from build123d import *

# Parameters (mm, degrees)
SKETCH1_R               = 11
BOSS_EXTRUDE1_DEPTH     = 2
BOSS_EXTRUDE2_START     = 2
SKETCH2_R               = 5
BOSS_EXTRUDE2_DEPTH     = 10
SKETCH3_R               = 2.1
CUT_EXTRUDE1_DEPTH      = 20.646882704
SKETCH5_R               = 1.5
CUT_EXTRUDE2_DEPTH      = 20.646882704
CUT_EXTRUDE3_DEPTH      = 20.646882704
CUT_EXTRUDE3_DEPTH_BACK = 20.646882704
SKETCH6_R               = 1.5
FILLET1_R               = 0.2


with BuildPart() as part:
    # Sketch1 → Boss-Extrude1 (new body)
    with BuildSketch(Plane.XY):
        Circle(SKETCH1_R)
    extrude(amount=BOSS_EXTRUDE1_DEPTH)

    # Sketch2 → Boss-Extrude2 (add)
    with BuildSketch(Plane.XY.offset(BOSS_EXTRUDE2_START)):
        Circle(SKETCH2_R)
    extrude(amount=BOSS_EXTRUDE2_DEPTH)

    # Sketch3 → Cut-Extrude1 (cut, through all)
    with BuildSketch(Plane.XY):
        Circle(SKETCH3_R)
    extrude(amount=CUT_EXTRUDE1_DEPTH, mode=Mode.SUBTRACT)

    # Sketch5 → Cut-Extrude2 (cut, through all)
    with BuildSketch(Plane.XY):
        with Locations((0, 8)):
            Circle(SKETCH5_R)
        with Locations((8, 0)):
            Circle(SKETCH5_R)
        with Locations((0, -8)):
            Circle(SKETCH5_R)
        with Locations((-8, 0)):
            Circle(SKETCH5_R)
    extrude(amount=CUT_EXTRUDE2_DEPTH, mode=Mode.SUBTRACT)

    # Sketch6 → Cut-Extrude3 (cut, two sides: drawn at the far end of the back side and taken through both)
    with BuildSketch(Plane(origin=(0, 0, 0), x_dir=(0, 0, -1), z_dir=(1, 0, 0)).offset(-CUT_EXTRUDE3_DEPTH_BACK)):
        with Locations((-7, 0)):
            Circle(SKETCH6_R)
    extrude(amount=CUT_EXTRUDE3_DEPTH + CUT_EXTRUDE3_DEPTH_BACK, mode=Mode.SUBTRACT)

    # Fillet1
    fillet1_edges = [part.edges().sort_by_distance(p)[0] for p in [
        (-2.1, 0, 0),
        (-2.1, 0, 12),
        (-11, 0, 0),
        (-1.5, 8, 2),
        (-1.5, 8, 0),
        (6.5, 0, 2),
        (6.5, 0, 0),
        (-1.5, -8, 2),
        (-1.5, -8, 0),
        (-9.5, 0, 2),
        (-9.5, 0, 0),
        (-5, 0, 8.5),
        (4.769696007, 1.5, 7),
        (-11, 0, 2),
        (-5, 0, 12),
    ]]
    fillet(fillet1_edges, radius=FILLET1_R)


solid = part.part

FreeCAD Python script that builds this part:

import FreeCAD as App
import Part
import Sketcher
from FreeCAD import Vector
Q = App.Units.Quantity


def edges_at(feature, points):
    """Names of the edges that pass closest to the given points."""
    edges = feature.Shape.Edges
    near = lambda p: min(range(len(edges)), key=lambda i: edges[i].distToShape(Part.Vertex(*p))[0])
    return sorted({f"Edge{near(p) + 1}" for p in points})

doc = App.newDocument("Part")
body = doc.addObject("PartDesign::Body", "Body")

sketch1 = body.newObject("Sketcher::SketchObject", "Sketch")
sketch1.AttachmentSupport = (doc.getObject("XY_Plane"), [""])
sketch1.MapMode = "FlatFace"
sketch1.addGeometry(Part.Circle(Vector(0, 0, 0), Vector(0, 0, 1), 11), False)
sketch1.addConstraint([
    Sketcher.Constraint("Coincident", 0, 3, -1, 1),
    Sketcher.Constraint("Diameter", 0, Q("22 mm")),
])
pad1 = body.newObject("PartDesign::Pad", "Pad")
pad1.Profile = sketch1
pad1.Length = 2

sketch2 = body.newObject("Sketcher::SketchObject", "Sketch001")
sketch2.AttachmentSupport = (doc.getObject("XY_Plane"), [""])
sketch2.MapMode = "FlatFace"
sketch2.AttachmentOffset = App.Placement(Vector(0, 0, 2), App.Rotation())
sketch2.addGeometry(Part.Circle(Vector(0, 0, 0), Vector(0, 0, 1), 5), False)
sketch2.addConstraint([
    Sketcher.Constraint("Coincident", 0, 3, -1, 1),
    Sketcher.Constraint("Diameter", 0, Q("10 mm")),
])
pad2 = body.newObject("PartDesign::Pad", "Pad001")
pad2.Profile = sketch2
pad2.Length = 10

sketch3 = body.newObject("Sketcher::SketchObject", "Sketch002")
sketch3.AttachmentSupport = (doc.getObject("XY_Plane"), [""])
sketch3.MapMode = "FlatFace"
sketch3.addGeometry(Part.Circle(Vector(0, 0, 0), Vector(0, 0, 1), 2.1), False)
sketch3.addConstraint([
    Sketcher.Constraint("Coincident", 0, 3, -1, 1),
    Sketcher.Constraint("Diameter", 0, Q("4.2 mm")),
])
pocket1 = body.newObject("PartDesign::Pocket", "Pocket")
pocket1.Profile = sketch3
pocket1.Type = "ThroughAll"
pocket1.Reversed = True

sketch4 = body.newObject("Sketcher::SketchObject", "Sketch003")
sketch4.AttachmentSupport = (doc.getObject("XY_Plane"), [""])
sketch4.MapMode = "FlatFace"
sketch4.addGeometry([
    Part.Circle(Vector(0, 8, 0), Vector(0, 0, 1), 1.5),
    Part.Circle(Vector(8, 0, 0), Vector(0, 0, 1), 1.5),
    Part.Circle(Vector(0, -8, 0), Vector(0, 0, 1), 1.5),
    Part.Circle(Vector(-8, 0, 0), Vector(0, 0, 1), 1.5),
], False)
sketch4.addConstraint([
    Sketcher.Constraint("Equal", 0, 1),
    Sketcher.Constraint("Equal", 1, 2),
    Sketcher.Constraint("Equal", 2, 3),
    Sketcher.Constraint("Symmetric", 0, 3, 2, 3, -1, 1),
    Sketcher.Constraint("Symmetric", 1, 3, 3, 3, -1, 1),
    Sketcher.Constraint("PointOnObject", 0, 3, -2),
    Sketcher.Constraint("PointOnObject", 1, 3, -1),
    Sketcher.Constraint("Diameter", 0, Q("3 mm")),
    Sketcher.Constraint("DistanceY", -1, 1, 0, 3, Q("8 mm")),
    Sketcher.Constraint("DistanceX", -1, 1, 1, 3, Q("8 mm")),
])
pocket2 = body.newObject("PartDesign::Pocket", "Pocket001")
pocket2.Profile = sketch4
pocket2.Type = "ThroughAll"
pocket2.Reversed = True

sketch5 = body.newObject("Sketcher::SketchObject", "Sketch004")
sketch5.AttachmentSupport = (doc.getObject("YZ_Plane"), [""])
sketch5.MapMode = "FlatFace"
sketch5.addGeometry(Part.Circle(Vector(0, 7, 0), Vector(0, 0, 1), 1.5), False)
sketch5.addConstraint([
    Sketcher.Constraint("PointOnObject", 0, 3, -2),
    Sketcher.Constraint("Diameter", 0, Q("3 mm")),
    Sketcher.Constraint("DistanceY", -1, 1, 0, 3, Q("7 mm")),
])
pocket3 = body.newObject("PartDesign::Pocket", "Pocket002")
pocket3.Profile = sketch5
pocket3.Type = "ThroughAll"
pocket3.Midplane = True
doc.recompute()

fillet = body.newObject("PartDesign::Fillet", "Fillet")
fillet.Base = (pocket3, edges_at(pocket3, [
    (-2.1, 0, 0),
    (-2.1, 0, 12),
    (-11, 0, 0),
    (-1.5, 8, 2),
    (-1.5, 8, 0),
    (6.5, 0, 2),
    (6.5, 0, 0),
    (-1.5, -8, 2),
    (-1.5, -8, 0),
    (-9.5, 0, 2),
    (-9.5, 0, 0),
    (-5, 0, 8.5),
    (4.77, 1.5, 7),
    (-11, 0, 2),
    (-5, 0, 12),
]))
fillet.Radius = 0.2

doc.recompute()
